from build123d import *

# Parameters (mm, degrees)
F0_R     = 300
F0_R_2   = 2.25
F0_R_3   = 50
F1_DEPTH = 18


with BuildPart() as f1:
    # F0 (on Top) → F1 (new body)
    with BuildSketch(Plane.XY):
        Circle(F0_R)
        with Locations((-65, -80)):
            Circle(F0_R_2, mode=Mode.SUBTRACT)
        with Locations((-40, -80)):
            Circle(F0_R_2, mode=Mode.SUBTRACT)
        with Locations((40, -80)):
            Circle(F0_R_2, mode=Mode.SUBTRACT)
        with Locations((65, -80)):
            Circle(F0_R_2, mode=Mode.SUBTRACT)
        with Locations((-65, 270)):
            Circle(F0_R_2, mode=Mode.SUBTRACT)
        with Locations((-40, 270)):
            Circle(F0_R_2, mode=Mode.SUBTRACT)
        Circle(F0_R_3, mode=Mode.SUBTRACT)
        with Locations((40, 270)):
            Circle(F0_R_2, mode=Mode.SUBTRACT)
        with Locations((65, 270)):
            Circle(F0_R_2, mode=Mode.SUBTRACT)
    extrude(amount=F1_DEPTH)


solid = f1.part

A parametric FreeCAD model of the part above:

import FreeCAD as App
import Part
import Sketcher

doc = App.newDocument("Part")
params = doc.addObject("Spreadsheet::Sheet", "Params")
for row, (alias, value) in enumerate([
    ("sketch1_diameter", "600 mm"),
    ("sketch1_diameter2", "100 mm"),
    ("sketch1_diameter3", "4.5 mm"),
    ("pad1_length", "18 mm"),
], start=1):
    params.set(f"A{row}", alias)
    params.set(f"B{row}", "=" + value)
    params.setAlias(f"B{row}", alias)

body = doc.addObject("PartDesign::Body", "Body")

# Sketch on XY plane
sketch1 = body.newObject("Sketcher::SketchObject", "Sketch")
sketch1.AttachmentSupport = (doc.getObject("XY_Plane"), [""])
sketch1.MapMode = "FlatFace"
sketch1.addGeometry(Part.Circle(App.Vector(0, 0, 0), App.Vector(0, 0, 1), 300), False)
sketch1.addGeometry(Part.Circle(App.Vector(-65, -80, 0), App.Vector(0, 0, 1), 2.25), False)
sketch1.addGeometry(Part.Circle(App.Vector(-40, -80, 0), App.Vector(0, 0, 1), 2.25), False)
sketch1.addGeometry(Part.Circle(App.Vector(0, 0, 0), App.Vector(0, 0, 1), 50), False)
sketch1.addGeometry(Part.Circle(App.Vector(40, -80, 0), App.Vector(0, 0, 1), 2.25), False)
sketch1.addGeometry(Part.Circle(App.Vector(65, -80, 0), App.Vector(0, 0, 1), 2.25), False)
sketch1.addGeometry(Part.Circle(App.Vector(-65, 270, 0), App.Vector(0, 0, 1), 2.25), False)
sketch1.addGeometry(Part.Circle(App.Vector(-40, 270, 0), App.Vector(0, 0, 1), 2.25), False)
sketch1.addGeometry(Part.Circle(App.Vector(40, 270, 0), App.Vector(0, 0, 1), 2.25), False)
sketch1.addGeometry(Part.Circle(App.Vector(65, 270, 0), App.Vector(0, 0, 1), 2.25), False)
sketch1.addConstraint(Sketcher.Constraint("Coincident", 0, 3, -1, 1))
sketch1.addConstraint(Sketcher.Constraint("Coincident", 3, 3, -1, 1))
sketch1.addConstraint(Sketcher.Constraint("Equal", 1, 2))
sketch1.addConstraint(Sketcher.Constraint("Equal", 2, 4))
sketch1.addConstraint(Sketcher.Constraint("Equal", 4, 5))
sketch1.addConstraint(Sketcher.Constraint("Equal", 5, 6))
sketch1.addConstraint(Sketcher.Constraint("Equal", 6, 7))
sketch1.addConstraint(Sketcher.Constraint("Equal", 7, 8))
sketch1.addConstraint(Sketcher.Constraint("Equal", 8, 9))
sketch1.addConstraint(Sketcher.Constraint("Symmetric", 2, 3, 4, 3, -2))
sketch1.addConstraint(Sketcher.Constraint("Symmetric", 1, 3, 5, 3, -2))
sketch1.addConstraint(Sketcher.Constraint("Symmetric", 7, 3, 8, 3, -2))
sketch1.addConstraint(Sketcher.Constraint("Symmetric", 6, 3, 9, 3, -2))
sketch1.addConstraint(Sketcher.Constraint("Horizontal", 1, 3, 2, 3))
sketch1.addConstraint(Sketcher.Constraint("Horizontal", 6, 3, 7, 3))
sketch1.addConstraint(Sketcher.Constraint("Vertical", 1, 3, 6, 3))
sketch1.addConstraint(Sketcher.Constraint("Vertical", 2, 3, 7, 3))
sketch1.addConstraint(Sketcher.Constraint("Diameter", 0, 600.0))
sketch1.addConstraint(Sketcher.Constraint("Diameter", 3, 100.0))
sketch1.addConstraint(Sketcher.Constraint("Diameter", 1, 4.5))
sketch1.addConstraint(Sketcher.Constraint("DistanceX", 1, 3, -1, 1, 65.0))
sketch1.addConstraint(Sketcher.Constraint("DistanceY", 1, 3, -1, 1, 80.0))
sketch1.addConstraint(Sketcher.Constraint("DistanceX", 2, 3, -1, 1, 40.0))
sketch1.addConstraint(Sketcher.Constraint("DistanceY", -1, 1, 6, 3, 270.0))
sketch1.setExpression("Constraints[17]", "Params.sketch1_diameter")
sketch1.setExpression("Constraints[18]", "Params.sketch1_diameter2")
sketch1.setExpression("Constraints[19]", "Params.sketch1_diameter3")
pad1 = body.newObject("PartDesign::Pad", "Pad")
pad1.Profile = sketch1
pad1.setExpression("Length", "Params.pad1_length")

doc.recompute()
